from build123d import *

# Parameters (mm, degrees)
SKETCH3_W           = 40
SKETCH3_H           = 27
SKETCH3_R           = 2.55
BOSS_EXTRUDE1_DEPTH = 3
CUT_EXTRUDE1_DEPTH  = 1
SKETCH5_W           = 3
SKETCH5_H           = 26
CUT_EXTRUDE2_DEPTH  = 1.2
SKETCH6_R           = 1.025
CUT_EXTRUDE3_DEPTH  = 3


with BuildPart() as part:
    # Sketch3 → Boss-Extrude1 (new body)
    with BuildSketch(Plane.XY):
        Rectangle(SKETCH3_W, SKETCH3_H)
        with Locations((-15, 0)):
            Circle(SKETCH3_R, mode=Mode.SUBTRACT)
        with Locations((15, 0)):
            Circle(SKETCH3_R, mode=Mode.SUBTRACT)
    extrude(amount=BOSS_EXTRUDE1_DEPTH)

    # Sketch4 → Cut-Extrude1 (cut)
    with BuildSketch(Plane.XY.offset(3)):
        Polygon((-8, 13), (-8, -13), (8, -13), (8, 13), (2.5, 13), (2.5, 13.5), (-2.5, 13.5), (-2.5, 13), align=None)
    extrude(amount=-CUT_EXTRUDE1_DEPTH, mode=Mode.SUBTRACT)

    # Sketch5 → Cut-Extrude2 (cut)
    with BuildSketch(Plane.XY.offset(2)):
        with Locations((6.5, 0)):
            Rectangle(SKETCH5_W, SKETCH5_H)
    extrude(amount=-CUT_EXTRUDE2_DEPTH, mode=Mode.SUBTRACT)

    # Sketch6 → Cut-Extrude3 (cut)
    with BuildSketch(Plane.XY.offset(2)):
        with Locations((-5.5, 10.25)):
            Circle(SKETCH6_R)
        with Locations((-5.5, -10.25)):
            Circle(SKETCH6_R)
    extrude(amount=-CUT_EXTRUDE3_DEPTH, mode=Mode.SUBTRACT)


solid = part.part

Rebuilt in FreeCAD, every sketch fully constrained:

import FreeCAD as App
import Part
import Sketcher
from FreeCAD import Vector
Q = App.Units.Quantity


def add_polygon(sketch, points):
    """Adds a closed chain of lines whose ends are joined by coincident constraints."""
    first, n = sketch.GeometryCount, len(points)
    for a, b in zip(points, points[1:] + points[:1]):
        sketch.addGeometry(Part.LineSegment(App.Vector(*a, 0), App.Vector(*b, 0)), False)
    for i in range(n):
        sketch.addConstraint(Sketcher.Constraint("Coincident", first + i, 2, first + (i + 1) % n, 1))

doc = App.newDocument("Part")
body = doc.addObject("PartDesign::Body", "Body")

sketch1 = doc.addObject("Sketcher::SketchObject", "Sketch")
body.addObject(sketch1)
sketch1.AttachmentSupport = (doc.XY_Plane, [""])
sketch1.MapMode = "FlatFace"
add_polygon(sketch1, [(-20, 13.5), (-20, -13.5), (20, -13.5), (20, 13.5)])
sketch1.addGeometry(Part.Circle(Vector(-15, 0, 0), Vector(0, 0, 1), 2.5), False)
sketch1.addGeometry(Part.Circle(Vector(15, 0, 0), Vector(0, 0, 1), 2.5), False)
sketch1.addConstraint(Sketcher.Constraint("Vertical", 0))
sketch1.addConstraint(Sketcher.Constraint("Horizontal", 1))
sketch1.addConstraint(Sketcher.Constraint("Vertical", 2))
sketch1.addConstraint(Sketcher.Constraint("Horizontal", 3))
sketch1.addConstraint(Sketcher.Constraint("Equal", 4, 5))
sketch1.addConstraint(Sketcher.Constraint("Symmetric", 4, 3, 5, 3, -1, 1))
sketch1.addConstraint(Sketcher.Constraint("Symmetric", 0, 2, 2, 2, -1, 1))
sketch1.addConstraint(Sketcher.Constraint("PointOnObject", 4, 3, -1))
sketch1.addConstraint(Sketcher.Constraint("Diameter", 4, Q("5.1 mm")))
sketch1.addConstraint(Sketcher.Constraint("DistanceX", 1, 1, 1, 2, Q("40 mm")))
sketch1.addConstraint(Sketcher.Constraint("DistanceY", 0, 2, 0, 1, Q("27 mm")))
sketch1.addConstraint(Sketcher.Constraint("DistanceX", 4, 3, -1, 1, Q("15 mm")))
pad1 = doc.addObject("PartDesign::Pad", "Pad")
body.addObject(pad1)
pad1.Profile = sketch1
pad1.Length = 3

sketch2 = doc.addObject("Sketcher::SketchObject", "Sketch001")
body.addObject(sketch2)
sketch2.AttachmentSupport = (doc.XY_Plane, [""])
sketch2.MapMode = "FlatFace"
sketch2.AttachmentOffset = App.Placement(Vector(0, 0, 3), App.Rotation())
add_polygon(sketch2, [(-8, 13), (-8, -13), (8, -13), (8, 13), (2.5, 13), (2.5, 13.5), (-2.5, 13.5), (-2.5, 13)])
sketch2.addConstraint(Sketcher.Constraint("Vertical", 0))
sketch2.addConstraint(Sketcher.Constraint("Horizontal", 1))
sketch2.addConstraint(Sketcher.Constraint("Vertical", 2))
sketch2.addConstraint(Sketcher.Constraint("Horizontal", 3))
sketch2.addConstraint(Sketcher.Constraint("Vertical", 4))
sketch2.addConstraint(Sketcher.Constraint("Horizontal", 5))
sketch2.addConstraint(Sketcher.Constraint("Vertical", 6))
sketch2.addConstraint(Sketcher.Constraint("Horizontal", 7))
sketch2.addConstraint(Sketcher.Constraint("Symmetric", 0, 2, 2, 2, -1, 1))
sketch2.addConstraint(Sketcher.Constraint("Symmetric", 3, 2, 6, 2, -2))
sketch2.addConstraint(Sketcher.Constraint("DistanceX", 1, 1, 1, 2, Q("16 mm")))
sketch2.addConstraint(Sketcher.Constraint("DistanceX", 5, 2, 5, 1, Q("5 mm")))
sketch2.addConstraint(Sketcher.Constraint("DistanceY", 0, 2, 0, 1, Q("26 mm")))
sketch2.addConstraint(Sketcher.Constraint("DistanceY", 4, 1, 4, 2, Q("0.5 mm")))
pocket1 = doc.addObject("PartDesign::Pocket", "Pocket")
body.addObject(pocket1)
pocket1.Profile = sketch2
pocket1.Length = 1

sketch3 = doc.addObject("Sketcher::SketchObject", "Sketch002")
body.addObject(sketch3)
sketch3.AttachmentSupport = (doc.XY_Plane, [""])
sketch3.MapMode = "FlatFace"
sketch3.AttachmentOffset = App.Placement(Vector(0, 0, 2), App.Rotation())
add_polygon(sketch3, [(5, 13), (5, -13), (8, -13), (8, 13)])
sketch3.addConstraint(Sketcher.Constraint("Vertical", 0))
sketch3.addConstraint(Sketcher.Constraint("Horizontal", 1))
sketch3.addConstraint(Sketcher.Constraint("Vertical", 2))
sketch3.addConstraint(Sketcher.Constraint("Horizontal", 3))
sketch3.addConstraint(Sketcher.Constraint("DistanceX", 1, 1, 1, 2, Q("3 mm")))
sketch3.addConstraint(Sketcher.Constraint("DistanceY", 0, 2, 0, 1, Q("26 mm")))
sketch3.addConstraint(Sketcher.Constraint("DistanceX", -1, 1, 0, 2, Q("5 mm")))
sketch3.addConstraint(Sketcher.Constraint("DistanceY", 0, 2, -1, 1, Q("13 mm")))
pocket2 = doc.addObject("PartDesign::Pocket", "Pocket001")
body.addObject(pocket2)
pocket2.Profile = sketch3
pocket2.Length = 1.2

sketch4 = doc.addObject("Sketcher::SketchObject", "Sketch003")
body.addObject(sketch4)
sketch4.AttachmentSupport = (doc.XY_Plane, [""])
sketch4.MapMode = "FlatFace"
sketch4.AttachmentOffset = App.Placement(Vector(0, 0, 2), App.Rotation())
sketch4.addGeometry(Part.Circle(Vector(-5.5, 10.2, 0), Vector(0, 0, 1), 1), False)
sketch4.addGeometry(Part.Circle(Vector(-5.5, -10.2, 0), Vector(0, 0, 1), 1), False)
sketch4.addConstraint(Sketcher.Constraint("Equal", 0, 1))
sketch4.addConstraint(Sketcher.Constraint("Symmetric", 0, 3, 1, 3, -1))
sketch4.addConstraint(Sketcher.Constraint("Diameter", 0, Q("2.05 mm")))
sketch4.addConstraint(Sketcher.Constraint("DistanceX", 0, 3, -1, 1, Q("5.5 mm")))
sketch4.addConstraint(Sketcher.Constraint("DistanceY", 1, 3, 0, 3, Q("20.5 mm")))
pocket3 = doc.addObject("PartDesign::Pocket", "Pocket002")
body.addObject(pocket3)
pocket3.Profile = sketch4
pocket3.Length = 3

doc.recompute()
